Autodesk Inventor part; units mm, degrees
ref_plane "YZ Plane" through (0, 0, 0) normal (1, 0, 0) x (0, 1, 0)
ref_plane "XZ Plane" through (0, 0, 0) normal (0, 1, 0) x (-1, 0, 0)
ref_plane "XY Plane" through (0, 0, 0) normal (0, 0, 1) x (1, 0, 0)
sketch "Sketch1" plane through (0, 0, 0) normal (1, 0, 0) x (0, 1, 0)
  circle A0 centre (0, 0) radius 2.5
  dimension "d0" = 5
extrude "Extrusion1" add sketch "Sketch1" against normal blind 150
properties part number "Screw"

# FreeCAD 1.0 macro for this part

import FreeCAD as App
import Part
import Sketcher
Q = App.Units.Quantity

doc = App.newDocument("Part")
body = doc.addObject("PartDesign::Body", "Body")

sketch1 = doc.addObject("Sketcher::SketchObject", "Sketch")
body.addObject(sketch1)
sketch1.AttachmentSupport = (doc.YZ_Plane, [""])
sketch1.MapMode = "FlatFace"
sketch1.addGeometry(Part.Circle(App.Vector(0, 0, 0), App.Vector(0, 0, 1), 2.5), False)
sketch1.addConstraint(Sketcher.Constraint("Coincident", 0, 3, -1, 1))
sketch1.addConstraint(Sketcher.Constraint("Diameter", 0, Q("5 mm")))
pad1 = doc.addObject("PartDesign::Pad", "Pad")
body.addObject(pad1)
pad1.Profile = sketch1
pad1.Length = 150
pad1.Reversed = True

doc.recompute()
